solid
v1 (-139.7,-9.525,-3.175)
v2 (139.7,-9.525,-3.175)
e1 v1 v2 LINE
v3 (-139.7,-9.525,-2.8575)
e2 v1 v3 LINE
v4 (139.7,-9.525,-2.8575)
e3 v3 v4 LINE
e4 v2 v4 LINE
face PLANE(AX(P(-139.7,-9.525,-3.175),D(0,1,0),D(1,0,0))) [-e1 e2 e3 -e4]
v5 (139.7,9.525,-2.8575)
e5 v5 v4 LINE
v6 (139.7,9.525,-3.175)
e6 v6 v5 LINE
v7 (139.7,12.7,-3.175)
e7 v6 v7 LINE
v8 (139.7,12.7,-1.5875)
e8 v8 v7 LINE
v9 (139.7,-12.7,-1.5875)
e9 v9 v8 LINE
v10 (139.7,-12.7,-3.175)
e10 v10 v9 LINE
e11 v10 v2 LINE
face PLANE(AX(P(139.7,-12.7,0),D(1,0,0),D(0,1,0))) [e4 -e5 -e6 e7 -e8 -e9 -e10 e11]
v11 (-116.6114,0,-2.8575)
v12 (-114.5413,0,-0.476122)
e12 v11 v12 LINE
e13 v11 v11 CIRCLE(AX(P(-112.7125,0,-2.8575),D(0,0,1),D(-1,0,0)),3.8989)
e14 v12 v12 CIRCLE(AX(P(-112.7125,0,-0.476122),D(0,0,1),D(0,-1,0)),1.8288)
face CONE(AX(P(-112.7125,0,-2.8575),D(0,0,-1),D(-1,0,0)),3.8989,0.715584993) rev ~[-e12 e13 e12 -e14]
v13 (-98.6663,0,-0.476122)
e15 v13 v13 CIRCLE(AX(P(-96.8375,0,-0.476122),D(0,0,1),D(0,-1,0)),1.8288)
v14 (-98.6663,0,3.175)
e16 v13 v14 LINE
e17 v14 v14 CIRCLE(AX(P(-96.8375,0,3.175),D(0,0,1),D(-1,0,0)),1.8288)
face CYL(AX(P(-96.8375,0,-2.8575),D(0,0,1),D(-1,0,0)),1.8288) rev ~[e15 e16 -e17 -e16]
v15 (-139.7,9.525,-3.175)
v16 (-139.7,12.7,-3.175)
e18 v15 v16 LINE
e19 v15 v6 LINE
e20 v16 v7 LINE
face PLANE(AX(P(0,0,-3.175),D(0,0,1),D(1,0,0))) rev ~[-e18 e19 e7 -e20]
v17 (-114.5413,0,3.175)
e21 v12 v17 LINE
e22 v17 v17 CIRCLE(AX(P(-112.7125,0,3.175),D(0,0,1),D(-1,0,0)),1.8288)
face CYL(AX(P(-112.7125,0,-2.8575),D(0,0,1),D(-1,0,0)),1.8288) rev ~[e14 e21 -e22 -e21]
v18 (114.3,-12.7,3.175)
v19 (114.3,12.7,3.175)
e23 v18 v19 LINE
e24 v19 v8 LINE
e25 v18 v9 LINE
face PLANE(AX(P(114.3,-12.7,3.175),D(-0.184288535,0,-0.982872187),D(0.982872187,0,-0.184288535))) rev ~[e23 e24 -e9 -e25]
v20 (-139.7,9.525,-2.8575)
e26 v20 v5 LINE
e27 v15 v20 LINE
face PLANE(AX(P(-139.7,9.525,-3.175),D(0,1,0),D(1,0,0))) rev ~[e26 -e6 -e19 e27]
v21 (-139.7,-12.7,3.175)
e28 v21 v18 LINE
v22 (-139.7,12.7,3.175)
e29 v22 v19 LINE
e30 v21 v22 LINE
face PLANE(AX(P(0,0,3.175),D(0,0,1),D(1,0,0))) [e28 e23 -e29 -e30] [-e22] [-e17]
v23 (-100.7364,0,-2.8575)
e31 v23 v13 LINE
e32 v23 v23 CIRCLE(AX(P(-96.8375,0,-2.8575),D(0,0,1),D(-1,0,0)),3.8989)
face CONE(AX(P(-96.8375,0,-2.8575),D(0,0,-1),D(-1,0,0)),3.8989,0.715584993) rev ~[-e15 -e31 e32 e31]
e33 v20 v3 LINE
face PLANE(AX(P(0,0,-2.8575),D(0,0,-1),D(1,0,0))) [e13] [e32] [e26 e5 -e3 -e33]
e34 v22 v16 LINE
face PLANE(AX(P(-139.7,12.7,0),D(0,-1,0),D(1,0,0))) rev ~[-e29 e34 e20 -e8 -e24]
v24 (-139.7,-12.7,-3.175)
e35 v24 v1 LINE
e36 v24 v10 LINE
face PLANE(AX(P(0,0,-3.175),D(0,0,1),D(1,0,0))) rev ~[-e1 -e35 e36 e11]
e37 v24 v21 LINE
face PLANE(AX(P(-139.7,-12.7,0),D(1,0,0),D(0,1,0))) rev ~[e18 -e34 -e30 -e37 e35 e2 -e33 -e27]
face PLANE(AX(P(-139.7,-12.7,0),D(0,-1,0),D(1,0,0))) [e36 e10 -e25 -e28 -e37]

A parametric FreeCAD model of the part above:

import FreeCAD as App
import Part
import Sketcher
Q = App.Units.Quantity


def add_polygon(sketch, points):
    """Adds a closed chain of lines whose ends are joined by coincident constraints."""
    first, n = sketch.GeometryCount, len(points)
    for a, b in zip(points, points[1:] + points[:1]):
        sketch.addGeometry(Part.LineSegment(App.Vector(*a, 0), App.Vector(*b, 0)), False)
    for i in range(n):
        sketch.addConstraint(Sketcher.Constraint("Coincident", first + i, 2, first + (i + 1) % n, 1))

doc = App.newDocument("Part")
params = doc.addObject("Spreadsheet::Sheet", "Params")
for row, (alias, value) in enumerate([
    ("sketch1_width", "11 in"),
    ("sketch1_height", "1 in"),
    ("pad1_length", "0.25 in"),
    ("sketch2_width", "1 in"),
    ("sketch2_height", "0.1875 in"),
    ("pocket1_length", "1 in"),
    ("sketch3_width", "11 in"),
    ("sketch3_height", "0.75 in"),
    ("pocket2_length", "0.0125 in"),
    ("sketch4_diameter", "0.144 in"),
    ("hole_diameter", "0.144 in"),
    ("hole_csink_diameter", "0.307 in"),
], start=1):
    params.set(f"A{row}", alias)
    params.set(f"B{row}", "=" + value)
    params.setAlias(f"B{row}", alias)

body = doc.addObject("PartDesign::Body", "Body")

# Sketch on XY plane
sketch1 = body.newObject("Sketcher::SketchObject", "Sketch")
sketch1.AttachmentSupport = (doc.getObject("XY_Plane"), [""])
sketch1.MapMode = "FlatFace"
add_polygon(sketch1, [(-140, 13), (-140, -13), (140, -13), (140, 13)])  # lines 0-3
sketch1.addConstraint(Sketcher.Constraint("Vertical", 0))
sketch1.addConstraint(Sketcher.Constraint("Horizontal", 1))
sketch1.addConstraint(Sketcher.Constraint("Vertical", 2))
sketch1.addConstraint(Sketcher.Constraint("Horizontal", 3))
sketch1.addConstraint(Sketcher.Constraint("Symmetric", 0, 2, 2, 2, -1, 1))
sketch1.addConstraint(Sketcher.Constraint("DistanceX", 1, 1, 1, 2, Q("11 in")))
sketch1.addConstraint(Sketcher.Constraint("DistanceY", 0, 2, 0, 1, Q("1 in")))
sketch1.setExpression("Constraints[9]", "Params.sketch1_width")
sketch1.setExpression("Constraints[10]", "Params.sketch1_height")
pad1 = body.newObject("PartDesign::Pad", "Pad")
pad1.Profile = sketch1
pad1.setExpression("Length", "Params.pad1_length")
pad1.Midplane = True

# Sketch on XZ plane
sketch2 = body.newObject("Sketcher::SketchObject", "Sketch001")
sketch2.AttachmentSupport = (doc.getObject("XZ_Plane"), [""])
sketch2.MapMode = "FlatFace"
sketch2.AttachmentOffset = App.Placement(App.Vector(0, 0, 0.5 * 25.4), App.Rotation())
add_polygon(sketch2, [(139.7, 3.2), (114.3, 3.2), (139.7, -1.6)])  # lines 0-2
sketch2.addConstraint(Sketcher.Constraint("Horizontal", 0))
sketch2.addConstraint(Sketcher.Constraint("Vertical", 2))
sketch2.addConstraint(Sketcher.Constraint("DistanceX", 0, 2, 0, 1, Q("1 in")))
sketch2.addConstraint(Sketcher.Constraint("DistanceX", -1, 1, 0, 2, Q("4.5 in")))
sketch2.addConstraint(Sketcher.Constraint("DistanceY", 2, 1, 2, 2, Q("0.1875 in")))
sketch2.addConstraint(Sketcher.Constraint("DistanceY", -1, 1, 0, 2, Q("0.125 in")))
sketch2.setExpression("Constraints[5]", "Params.sketch2_width")
sketch2.setExpression("Constraints[7]", "Params.sketch2_height")
pocket1 = body.newObject("PartDesign::Pocket", "Pocket")
pocket1.Profile = sketch2
pocket1.setExpression("Length", "Params.pocket1_length")

# Sketch on XY plane
sketch3 = body.newObject("Sketcher::SketchObject", "Sketch002")
sketch3.AttachmentSupport = (doc.getObject("XY_Plane"), [""])
sketch3.MapMode = "FlatFace"
sketch3.AttachmentOffset = App.Placement(App.Vector(0, 0, -0.125 * 25.4), App.Rotation())
add_polygon(sketch3, [(-140, -10), (-140, 10), (140, 10), (140, -10)])  # lines 0-3
sketch3.addConstraint(Sketcher.Constraint("Vertical", 0))
sketch3.addConstraint(Sketcher.Constraint("Horizontal", 1))
sketch3.addConstraint(Sketcher.Constraint("Vertical", 2))
sketch3.addConstraint(Sketcher.Constraint("Horizontal", 3))
sketch3.addConstraint(Sketcher.Constraint("Symmetric", 0, 2, 2, 2, -1, 1))
sketch3.addConstraint(Sketcher.Constraint("DistanceX", 1, 1, 1, 2, Q("11 in")))
sketch3.addConstraint(Sketcher.Constraint("DistanceY", 0, 1, 0, 2, Q("0.75 in")))
sketch3.setExpression("Constraints[9]", "Params.sketch3_width")
sketch3.setExpression("Constraints[10]", "Params.sketch3_height")
pocket2 = body.newObject("PartDesign::Pocket", "Pocket001")
pocket2.Profile = sketch3
pocket2.setExpression("Length", "Params.pocket2_length")
pocket2.Reversed = True

# Sketch on XY plane
sketch4 = body.newObject("Sketcher::SketchObject", "Sketch003")
sketch4.AttachmentSupport = (doc.getObject("XY_Plane"), [""])
sketch4.MapMode = "FlatFace"
sketch4.AttachmentOffset = App.Placement(App.Vector(0, 0, -0.1125 * 25.4), App.Rotation())
sketch4.addGeometry(Part.Circle(App.Vector(-112.7, 0, 0), App.Vector(0, 0, 1), 1.8), False)
sketch4.addGeometry(Part.Circle(App.Vector(-96.8, 0, 0), App.Vector(0, 0, 1), 1.8), False)
sketch4.addConstraint(Sketcher.Constraint("Equal", 0, 1))
sketch4.addConstraint(Sketcher.Constraint("PointOnObject", 0, 3, -1))
sketch4.addConstraint(Sketcher.Constraint("PointOnObject", 1, 3, -1))
sketch4.addConstraint(Sketcher.Constraint("Diameter", 0, Q("0.144 in")))
sketch4.addConstraint(Sketcher.Constraint("DistanceX", 0, 3, -1, 1, Q("4.4375 in")))
sketch4.addConstraint(Sketcher.Constraint("DistanceX", 1, 3, -1, 1, Q("3.8125 in")))
sketch4.setExpression("Constraints[3]", "Params.sketch4_diameter")
doc.recompute()
hole = body.newObject("PartDesign::Hole", "Hole")
hole.Profile = sketch4
hole.ThreadType = "None"
hole.setExpression("Diameter", "Params.hole_diameter")
hole.DepthType = "ThroughAll"
hole.HoleCutType = "Countersink"
hole.setExpression("HoleCutDiameter", "Params.hole_csink_diameter")
hole.HoleCutCountersinkAngle = 82
hole.Reversed = True

doc.recompute()
